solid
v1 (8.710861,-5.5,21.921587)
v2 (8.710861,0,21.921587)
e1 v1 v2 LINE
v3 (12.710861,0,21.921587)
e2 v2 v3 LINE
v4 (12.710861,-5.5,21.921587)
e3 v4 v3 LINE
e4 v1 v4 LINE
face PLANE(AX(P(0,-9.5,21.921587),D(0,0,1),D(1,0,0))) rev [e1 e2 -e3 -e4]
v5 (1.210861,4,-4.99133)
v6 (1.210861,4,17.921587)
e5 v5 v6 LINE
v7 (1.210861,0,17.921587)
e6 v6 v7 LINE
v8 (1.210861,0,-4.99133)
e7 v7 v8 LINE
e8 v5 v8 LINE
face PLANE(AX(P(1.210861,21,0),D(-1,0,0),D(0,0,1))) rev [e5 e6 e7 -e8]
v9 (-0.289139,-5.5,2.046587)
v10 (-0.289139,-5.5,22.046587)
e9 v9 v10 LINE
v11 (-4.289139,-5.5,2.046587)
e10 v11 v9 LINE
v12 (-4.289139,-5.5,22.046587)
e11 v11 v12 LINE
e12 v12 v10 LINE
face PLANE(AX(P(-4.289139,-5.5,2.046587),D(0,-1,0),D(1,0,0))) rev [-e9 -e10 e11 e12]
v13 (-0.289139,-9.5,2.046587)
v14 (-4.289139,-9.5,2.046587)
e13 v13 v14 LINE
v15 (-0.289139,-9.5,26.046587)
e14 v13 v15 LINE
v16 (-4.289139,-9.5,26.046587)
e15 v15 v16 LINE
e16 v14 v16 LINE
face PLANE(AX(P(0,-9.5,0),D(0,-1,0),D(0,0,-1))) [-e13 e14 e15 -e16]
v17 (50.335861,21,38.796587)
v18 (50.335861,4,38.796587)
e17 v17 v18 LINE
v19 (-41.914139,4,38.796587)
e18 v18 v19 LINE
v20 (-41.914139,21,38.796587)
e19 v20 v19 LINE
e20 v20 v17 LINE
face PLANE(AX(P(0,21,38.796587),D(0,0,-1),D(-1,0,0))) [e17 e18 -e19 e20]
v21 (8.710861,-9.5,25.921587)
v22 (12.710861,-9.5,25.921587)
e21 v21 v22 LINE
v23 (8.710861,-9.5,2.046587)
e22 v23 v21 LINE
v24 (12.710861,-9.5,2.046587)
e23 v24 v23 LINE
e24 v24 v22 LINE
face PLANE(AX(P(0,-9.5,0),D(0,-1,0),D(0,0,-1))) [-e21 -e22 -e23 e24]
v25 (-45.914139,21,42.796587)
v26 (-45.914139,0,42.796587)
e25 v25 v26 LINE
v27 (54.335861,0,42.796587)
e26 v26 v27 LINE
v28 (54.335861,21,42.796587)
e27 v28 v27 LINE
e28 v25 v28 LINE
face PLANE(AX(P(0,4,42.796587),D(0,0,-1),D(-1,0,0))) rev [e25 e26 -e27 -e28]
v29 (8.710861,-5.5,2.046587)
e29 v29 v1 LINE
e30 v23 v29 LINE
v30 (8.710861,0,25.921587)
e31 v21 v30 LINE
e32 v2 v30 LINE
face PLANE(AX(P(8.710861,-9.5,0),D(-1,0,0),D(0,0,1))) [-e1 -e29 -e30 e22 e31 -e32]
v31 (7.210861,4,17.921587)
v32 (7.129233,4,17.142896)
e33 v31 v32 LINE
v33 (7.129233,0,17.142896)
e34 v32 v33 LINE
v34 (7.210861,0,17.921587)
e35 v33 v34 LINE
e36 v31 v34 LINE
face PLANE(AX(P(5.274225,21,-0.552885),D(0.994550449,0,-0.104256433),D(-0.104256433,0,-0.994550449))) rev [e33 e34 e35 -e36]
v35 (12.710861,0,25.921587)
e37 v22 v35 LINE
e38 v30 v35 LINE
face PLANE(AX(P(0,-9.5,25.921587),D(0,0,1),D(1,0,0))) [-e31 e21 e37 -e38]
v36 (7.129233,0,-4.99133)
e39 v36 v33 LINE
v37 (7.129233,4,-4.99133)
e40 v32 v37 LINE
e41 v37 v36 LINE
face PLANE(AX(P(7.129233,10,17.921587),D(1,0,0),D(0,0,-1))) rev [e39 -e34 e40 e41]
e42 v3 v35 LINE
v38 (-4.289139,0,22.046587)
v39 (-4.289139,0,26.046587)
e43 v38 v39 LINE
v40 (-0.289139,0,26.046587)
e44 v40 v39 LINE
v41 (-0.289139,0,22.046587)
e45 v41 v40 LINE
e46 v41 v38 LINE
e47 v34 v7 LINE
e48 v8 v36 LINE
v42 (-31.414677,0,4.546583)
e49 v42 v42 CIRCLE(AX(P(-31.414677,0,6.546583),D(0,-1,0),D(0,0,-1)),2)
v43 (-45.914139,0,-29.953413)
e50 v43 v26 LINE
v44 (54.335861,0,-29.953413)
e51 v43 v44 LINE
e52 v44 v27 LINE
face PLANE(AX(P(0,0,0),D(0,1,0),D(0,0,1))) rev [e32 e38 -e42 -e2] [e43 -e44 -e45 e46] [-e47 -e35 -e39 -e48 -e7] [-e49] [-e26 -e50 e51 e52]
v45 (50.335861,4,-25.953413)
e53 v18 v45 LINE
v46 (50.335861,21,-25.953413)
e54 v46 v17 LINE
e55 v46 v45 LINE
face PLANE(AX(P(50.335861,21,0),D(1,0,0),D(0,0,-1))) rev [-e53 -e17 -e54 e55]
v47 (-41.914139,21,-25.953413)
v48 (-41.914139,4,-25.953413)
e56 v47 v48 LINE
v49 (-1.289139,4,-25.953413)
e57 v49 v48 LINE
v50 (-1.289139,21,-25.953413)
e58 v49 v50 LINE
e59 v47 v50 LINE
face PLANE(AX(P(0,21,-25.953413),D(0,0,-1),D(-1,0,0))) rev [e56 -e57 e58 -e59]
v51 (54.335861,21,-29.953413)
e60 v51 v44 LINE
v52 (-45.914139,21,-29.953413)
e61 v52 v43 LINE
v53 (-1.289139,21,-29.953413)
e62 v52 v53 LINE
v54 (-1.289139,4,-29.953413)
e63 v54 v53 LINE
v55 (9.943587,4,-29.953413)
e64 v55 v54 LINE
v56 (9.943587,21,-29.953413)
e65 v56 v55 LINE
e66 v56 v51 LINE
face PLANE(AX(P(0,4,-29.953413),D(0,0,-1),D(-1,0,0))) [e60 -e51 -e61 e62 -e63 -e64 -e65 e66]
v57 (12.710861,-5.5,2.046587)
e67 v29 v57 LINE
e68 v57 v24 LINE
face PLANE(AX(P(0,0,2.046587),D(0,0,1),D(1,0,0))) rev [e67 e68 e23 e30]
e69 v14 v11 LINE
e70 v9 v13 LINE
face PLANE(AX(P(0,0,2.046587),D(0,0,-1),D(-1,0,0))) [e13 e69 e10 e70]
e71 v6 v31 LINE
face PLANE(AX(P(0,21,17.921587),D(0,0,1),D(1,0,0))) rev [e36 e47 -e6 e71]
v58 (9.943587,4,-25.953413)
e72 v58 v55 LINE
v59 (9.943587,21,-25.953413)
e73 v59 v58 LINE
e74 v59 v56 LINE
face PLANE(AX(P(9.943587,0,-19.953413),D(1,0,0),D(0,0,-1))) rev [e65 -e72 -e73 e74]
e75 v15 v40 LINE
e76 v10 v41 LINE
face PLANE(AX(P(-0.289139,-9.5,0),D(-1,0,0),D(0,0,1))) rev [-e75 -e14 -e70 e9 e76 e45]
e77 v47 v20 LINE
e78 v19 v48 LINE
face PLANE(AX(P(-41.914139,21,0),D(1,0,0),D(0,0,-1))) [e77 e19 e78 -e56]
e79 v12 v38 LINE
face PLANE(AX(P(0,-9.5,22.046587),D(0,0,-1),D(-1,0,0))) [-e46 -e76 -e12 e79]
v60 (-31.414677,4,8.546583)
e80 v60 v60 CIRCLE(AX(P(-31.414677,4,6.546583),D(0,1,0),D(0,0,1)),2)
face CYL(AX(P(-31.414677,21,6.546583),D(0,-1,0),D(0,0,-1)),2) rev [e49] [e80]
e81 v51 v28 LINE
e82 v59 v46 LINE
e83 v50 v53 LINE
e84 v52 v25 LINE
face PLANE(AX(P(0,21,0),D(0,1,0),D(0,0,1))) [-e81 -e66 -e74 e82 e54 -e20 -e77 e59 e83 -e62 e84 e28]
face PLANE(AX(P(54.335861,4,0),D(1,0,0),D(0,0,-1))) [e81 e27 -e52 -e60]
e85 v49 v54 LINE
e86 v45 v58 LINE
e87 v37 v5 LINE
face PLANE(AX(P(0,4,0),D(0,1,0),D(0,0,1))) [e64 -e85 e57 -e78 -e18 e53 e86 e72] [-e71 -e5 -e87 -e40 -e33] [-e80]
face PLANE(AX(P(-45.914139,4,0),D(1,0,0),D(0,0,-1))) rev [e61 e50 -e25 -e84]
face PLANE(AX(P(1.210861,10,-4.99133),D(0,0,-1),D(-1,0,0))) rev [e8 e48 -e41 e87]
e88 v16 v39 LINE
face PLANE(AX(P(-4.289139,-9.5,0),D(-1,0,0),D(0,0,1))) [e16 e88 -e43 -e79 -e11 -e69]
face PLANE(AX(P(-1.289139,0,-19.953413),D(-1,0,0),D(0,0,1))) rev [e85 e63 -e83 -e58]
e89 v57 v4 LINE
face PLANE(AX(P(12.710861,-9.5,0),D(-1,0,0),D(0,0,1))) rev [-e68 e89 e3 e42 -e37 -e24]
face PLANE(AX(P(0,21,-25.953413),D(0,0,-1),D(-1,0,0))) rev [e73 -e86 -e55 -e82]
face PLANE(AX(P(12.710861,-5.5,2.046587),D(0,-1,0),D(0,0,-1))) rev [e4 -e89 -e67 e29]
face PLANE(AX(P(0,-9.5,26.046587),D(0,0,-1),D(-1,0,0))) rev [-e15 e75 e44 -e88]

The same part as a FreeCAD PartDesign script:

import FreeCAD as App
import Part
import Sketcher
from FreeCAD import Vector
Q = App.Units.Quantity

doc = App.newDocument("Part")
params = doc.addObject("Spreadsheet::Sheet", "Params")
for row, (alias, value) in enumerate([
    ("sketch1_width", "100.25 mm"),
    ("sketch1_height", "72.75 mm"),
    ("pad1_length", "4 mm"),
    ("sketch2_width", "100.25 mm"),
    ("sketch2_height", "72.75 mm"),
    ("pad2_length", "21 mm"),
    ("sketch3_width", "6 mm"),
    ("pocket1_length", "21 mm"),
    ("sketch4_diameter", "4 mm"),
    ("pocket2_length", "21 mm"),
    ("sketch5_width", "4 mm"),
    ("pad3_length", "9.5 mm"),
    ("sketch6_width", "4 mm"),
    ("pad4_length", "20 mm"),
    ("sketch7_height", "17 mm"),
    ("pocket3_length", "10 mm"),
    ("pocket4_length", "10 mm"),
], start=1):
    params.set(f"A{row}", alias)
    params.set(f"B{row}", "=" + value)
    params.setAlias(f"B{row}", alias)

body = doc.addObject("PartDesign::Body", "Body")

sketch1 = body.newObject("Sketcher::SketchObject", "Sketch")
sketch1.AttachmentSupport = (doc.getObject("XZ_Plane"), [""])
sketch1.MapMode = "FlatFace"
sketch1.addGeometry(Part.LineSegment(Vector(-46, 43, 0), Vector(54, 43, 0)), False)
sketch1.addGeometry(Part.LineSegment(Vector(54, 43, 0), Vector(54, -30, 0)), False)
sketch1.addGeometry(Part.LineSegment(Vector(54, -30, 0), Vector(-46, -30, 0)), False)
sketch1.addGeometry(Part.LineSegment(Vector(-46, -30, 0), Vector(-46, 43, 0)), False)
sketch1.addConstraint(Sketcher.Constraint("Coincident", 0, 2, 1, 1))
sketch1.addConstraint(Sketcher.Constraint("Coincident", 1, 2, 2, 1))
sketch1.addConstraint(Sketcher.Constraint("Coincident", 2, 2, 3, 1))
sketch1.addConstraint(Sketcher.Constraint("Coincident", 3, 2, 0, 1))
sketch1.addConstraint(Sketcher.Constraint("Horizontal", 0))
sketch1.addConstraint(Sketcher.Constraint("Vertical", 1))
sketch1.addConstraint(Sketcher.Constraint("Horizontal", 2))
sketch1.addConstraint(Sketcher.Constraint("Vertical", 3))
sketch1.addConstraint(Sketcher.Constraint("DistanceX", 0, 1, 0, 2, Q("100.25 mm")))
sketch1.addConstraint(Sketcher.Constraint("DistanceY", 1, 2, 1, 1, Q("72.75 mm")))
sketch1.addConstraint(Sketcher.Constraint("DistanceX", -1, 1, 0, 2, Q("54.335861 mm")))
sketch1.addConstraint(Sketcher.Constraint("DistanceY", -1, 1, 0, 2, Q("42.796587 mm")))
sketch1.setExpression("Constraints[8]", "Params.sketch1_width")
sketch1.setExpression("Constraints[9]", "Params.sketch1_height")
pad1 = body.newObject("PartDesign::Pad", "Pad")
pad1.Profile = sketch1
pad1.setExpression("Length", "Params.pad1_length")
pad1.Reversed = True

sketch2 = body.newObject("Sketcher::SketchObject", "Sketch001")
sketch2.AttachmentSupport = (doc.getObject("XZ_Plane"), [""])
sketch2.MapMode = "FlatFace"
sketch2.addGeometry(Part.LineSegment(Vector(-46, 43, 0), Vector(54, 43, 0)), False)
sketch2.addGeometry(Part.LineSegment(Vector(54, 43, 0), Vector(54, -30, 0)), False)
sketch2.addGeometry(Part.LineSegment(Vector(54, -30, 0), Vector(-46, -30, 0)), False)
sketch2.addGeometry(Part.LineSegment(Vector(-46, -30, 0), Vector(-46, 43, 0)), False)
sketch2.addGeometry(Part.LineSegment(Vector(50, -26, 0), Vector(50, 39, 0)), False)
sketch2.addGeometry(Part.LineSegment(Vector(50, 39, 0), Vector(-42, 39, 0)), False)
sketch2.addGeometry(Part.LineSegment(Vector(-42, 39, 0), Vector(-42, -26, 0)), False)
sketch2.addGeometry(Part.LineSegment(Vector(-42, -26, 0), Vector(50, -26, 0)), False)
sketch2.addConstraint(Sketcher.Constraint("Coincident", 0, 2, 1, 1))
sketch2.addConstraint(Sketcher.Constraint("Coincident", 1, 2, 2, 1))
sketch2.addConstraint(Sketcher.Constraint("Coincident", 2, 2, 3, 1))
sketch2.addConstraint(Sketcher.Constraint("Coincident", 3, 2, 0, 1))
sketch2.addConstraint(Sketcher.Constraint("Coincident", 4, 2, 5, 1))
sketch2.addConstraint(Sketcher.Constraint("Coincident", 5, 2, 6, 1))
sketch2.addConstraint(Sketcher.Constraint("Coincident", 6, 2, 7, 1))
sketch2.addConstraint(Sketcher.Constraint("Coincident", 7, 2, 4, 1))
sketch2.addConstraint(Sketcher.Constraint("Horizontal", 0))
sketch2.addConstraint(Sketcher.Constraint("Vertical", 1))
sketch2.addConstraint(Sketcher.Constraint("Horizontal", 2))
sketch2.addConstraint(Sketcher.Constraint("Vertical", 3))
sketch2.addConstraint(Sketcher.Constraint("Vertical", 4))
sketch2.addConstraint(Sketcher.Constraint("Horizontal", 5))
sketch2.addConstraint(Sketcher.Constraint("Vertical", 6))
sketch2.addConstraint(Sketcher.Constraint("Horizontal", 7))
sketch2.addConstraint(Sketcher.Constraint("DistanceX", 4, 2, 0, 2, Q("4 mm")))
sketch2.addConstraint(Sketcher.Constraint("DistanceY", 4, 2, 0, 2, Q("4 mm")))
sketch2.addConstraint(Sketcher.Constraint("DistanceX", 3, 2, 5, 2, Q("4 mm")))
sketch2.addConstraint(Sketcher.Constraint("DistanceY", 2, 2, 6, 2, Q("4 mm")))
sketch2.addConstraint(Sketcher.Constraint("DistanceX", 0, 1, 0, 2, Q("100.25 mm")))
sketch2.addConstraint(Sketcher.Constraint("DistanceY", 1, 2, 1, 1, Q("72.75 mm")))
sketch2.addConstraint(Sketcher.Constraint("DistanceX", -1, 1, 0, 2, Q("54.335861 mm")))
sketch2.addConstraint(Sketcher.Constraint("DistanceY", -1, 1, 0, 2, Q("42.796587 mm")))
sketch2.setExpression("Constraints[20]", "Params.sketch2_width")
sketch2.setExpression("Constraints[21]", "Params.sketch2_height")
pad2 = body.newObject("PartDesign::Pad", "Pad001")
pad2.Profile = sketch2
pad2.setExpression("Length", "Params.pad2_length")
pad2.Reversed = True

sketch3 = body.newObject("Sketcher::SketchObject", "Sketch002")
sketch3.AttachmentSupport = (doc.getObject("XZ_Plane"), [""])
sketch3.MapMode = "FlatFace"
sketch3.addGeometry(Part.LineSegment(Vector(5.9, 5.2, 0), Vector(7.2, 17.9, 0)), False)
sketch3.addGeometry(Part.LineSegment(Vector(7.2, 17.9, 0), Vector(1.2, 17.9, 0)), False)
sketch3.addGeometry(Part.LineSegment(Vector(1.2, 17.9, 0), Vector(1.2, -5, 0)), False)
sketch3.addGeometry(Part.LineSegment(Vector(1.2, -5, 0), Vector(4.8, -5, 0)), False)
sketch3.addGeometry(Part.LineSegment(Vector(4.8, -5, 0), Vector(5.9, 5.2, 0)), False)
sketch3.addConstraint(Sketcher.Constraint("Coincident", 0, 2, 1, 1))
sketch3.addConstraint(Sketcher.Constraint("Coincident", 1, 2, 2, 1))
sketch3.addConstraint(Sketcher.Constraint("Coincident", 2, 2, 3, 1))
sketch3.addConstraint(Sketcher.Constraint("Coincident", 3, 2, 4, 1))
sketch3.addConstraint(Sketcher.Constraint("Coincident", 4, 2, 0, 1))
sketch3.addConstraint(Sketcher.Constraint("Horizontal", 1))
sketch3.addConstraint(Sketcher.Constraint("Vertical", 2))
sketch3.addConstraint(Sketcher.Constraint("Horizontal", 3))
sketch3.addConstraint(Sketcher.Constraint("Parallel", 0, 4))
sketch3.addConstraint(Sketcher.Constraint("DistanceX", 1, 2, 1, 1, Q("6 mm")))
sketch3.addConstraint(Sketcher.Constraint("DistanceY", 2, 2, 2, 1, Q("22.87466 mm")))
sketch3.addConstraint(Sketcher.Constraint("DistanceX", 3, 1, 3, 2, Q("3.602102 mm")))
sketch3.addConstraint(Sketcher.Constraint("DistanceX", -1, 1, 0, 2, Q("7.210861 mm")))
sketch3.addConstraint(Sketcher.Constraint("DistanceX", 3, 2, 4, 2, Q("1.06552 mm")))
sketch3.addConstraint(Sketcher.Constraint("DistanceY", -1, 1, 0, 2, Q("17.921587 mm")))
sketch3.setExpression("Constraints[9]", "Params.sketch3_width")
pocket1 = body.newObject("PartDesign::Pocket", "Pocket")
pocket1.Profile = sketch3
pocket1.setExpression("Length", "Params.pocket1_length")

sketch4 = body.newObject("Sketcher::SketchObject", "Sketch003")
sketch4.AttachmentSupport = (doc.getObject("XZ_Plane"), [""])
sketch4.MapMode = "FlatFace"
sketch4.addGeometry(Part.Circle(Vector(-31.4, 6.5, 0), Vector(0, 0, 1), 2), False)
sketch4.addConstraint(Sketcher.Constraint("Diameter", 0, Q("4 mm")))
sketch4.addConstraint(Sketcher.Constraint("DistanceX", 0, 3, -1, 1, Q("31.414677 mm")))
sketch4.addConstraint(Sketcher.Constraint("DistanceY", -1, 1, 0, 3, Q("6.546583 mm")))
sketch4.setExpression("Constraints[0]", "Params.sketch4_diameter")
pocket2 = body.newObject("PartDesign::Pocket", "Pocket001")
pocket2.Profile = sketch4
pocket2.setExpression("Length", "Params.pocket2_length")

sketch5 = body.newObject("Sketcher::SketchObject", "Sketch004")
sketch5.AttachmentSupport = (doc.getObject("XZ_Plane"), [""])
sketch5.MapMode = "FlatFace"
sketch5.addGeometry(Part.LineSegment(Vector(12.7, 21.9, 0), Vector(12.7, 25.9, 0)), False)
sketch5.addGeometry(Part.LineSegment(Vector(12.7, 25.9, 0), Vector(8.7, 25.9, 0)), False)
sketch5.addGeometry(Part.LineSegment(Vector(8.7, 25.9, 0), Vector(8.7, 21.9, 0)), False)
sketch5.addGeometry(Part.LineSegment(Vector(8.7, 21.9, 0), Vector(12.7, 21.9, 0)), False)
sketch5.addGeometry(Part.LineSegment(Vector(-0.3, 22, 0), Vector(-0.3, 26, 0)), False)
sketch5.addGeometry(Part.LineSegment(Vector(-0.3, 26, 0), Vector(-4.3, 26, 0)), False)
sketch5.addGeometry(Part.LineSegment(Vector(-4.3, 26, 0), Vector(-4.3, 22, 0)), False)
sketch5.addGeometry(Part.LineSegment(Vector(-4.3, 22, 0), Vector(-0.3, 22, 0)), False)
sketch5.addConstraint(Sketcher.Constraint("Coincident", 0, 2, 1, 1))
sketch5.addConstraint(Sketcher.Constraint("Coincident", 1, 2, 2, 1))
sketch5.addConstraint(Sketcher.Constraint("Coincident", 2, 2, 3, 1))
sketch5.addConstraint(Sketcher.Constraint("Coincident", 3, 2, 0, 1))
sketch5.addConstraint(Sketcher.Constraint("Coincident", 4, 2, 5, 1))
sketch5.addConstraint(Sketcher.Constraint("Coincident", 5, 2, 6, 1))
sketch5.addConstraint(Sketcher.Constraint("Coincident", 6, 2, 7, 1))
sketch5.addConstraint(Sketcher.Constraint("Coincident", 7, 2, 4, 1))
sketch5.addConstraint(Sketcher.Constraint("Vertical", 0))
sketch5.addConstraint(Sketcher.Constraint("Horizontal", 1))
sketch5.addConstraint(Sketcher.Constraint("Vertical", 2))
sketch5.addConstraint(Sketcher.Constraint("Horizontal", 3))
sketch5.addConstraint(Sketcher.Constraint("Vertical", 4))
sketch5.addConstraint(Sketcher.Constraint("Horizontal", 5))
sketch5.addConstraint(Sketcher.Constraint("Vertical", 6))
sketch5.addConstraint(Sketcher.Constraint("Horizontal", 7))
sketch5.addConstraint(Sketcher.Constraint("Equal", 3, 5))
sketch5.addConstraint(Sketcher.Constraint("Equal", 7, 0))
sketch5.addConstraint(Sketcher.Constraint("Equal", 2, 4))
sketch5.addConstraint(Sketcher.Constraint("DistanceX", 1, 2, 1, 1, Q("4 mm")))
sketch5.addConstraint(Sketcher.Constraint("DistanceX", 4, 2, 1, 2, Q("9 mm")))
sketch5.addConstraint(Sketcher.Constraint("DistanceY", 1, 2, 4, 2, Q("0.125 mm")))
sketch5.addConstraint(Sketcher.Constraint("DistanceX", -1, 1, 0, 2, Q("12.710861 mm")))
sketch5.addConstraint(Sketcher.Constraint("DistanceY", -1, 1, 0, 2, Q("25.921587 mm")))
sketch5.setExpression("Constraints[19]", "Params.sketch5_width")
pad3 = body.newObject("PartDesign::Pad", "Pad002")
pad3.Profile = sketch5
pad3.setExpression("Length", "Params.pad3_length")

sketch6 = body.newObject("Sketcher::SketchObject", "Sketch005")
sketch6.AttachmentSupport = (doc.getObject("XY_Plane"), [""])
sketch6.MapMode = "FlatFace"
sketch6.AttachmentOffset = App.Placement(Vector(0, 0, 22.046587), App.Rotation())
sketch6.addGeometry(Part.LineSegment(Vector(-0.3, -5.5, 0), Vector(-0.3, -9.5, 0)), False)
sketch6.addGeometry(Part.LineSegment(Vector(-0.3, -9.5, 0), Vector(-4.3, -9.5, 0)), False)
sketch6.addGeometry(Part.LineSegment(Vector(-4.3, -9.5, 0), Vector(-4.3, -5.5, 0)), False)
sketch6.addGeometry(Part.LineSegment(Vector(-4.3, -5.5, 0), Vector(-0.3, -5.5, 0)), False)
sketch6.addGeometry(Part.LineSegment(Vector(12.7, -5.5, 0), Vector(12.7, -9.5, 0)), False)
sketch6.addGeometry(Part.LineSegment(Vector(12.7, -9.5, 0), Vector(8.7, -9.5, 0)), False)
sketch6.addGeometry(Part.LineSegment(Vector(8.7, -9.5, 0), Vector(8.7, -5.5, 0)), False)
sketch6.addGeometry(Part.LineSegment(Vector(8.7, -5.5, 0), Vector(12.7, -5.5, 0)), False)
sketch6.addConstraint(Sketcher.Constraint("Coincident", 0, 2, 1, 1))
sketch6.addConstraint(Sketcher.Constraint("Coincident", 1, 2, 2, 1))
sketch6.addConstraint(Sketcher.Constraint("Coincident", 2, 2, 3, 1))
sketch6.addConstraint(Sketcher.Constraint("Coincident", 3, 2, 0, 1))
sketch6.addConstraint(Sketcher.Constraint("Coincident", 4, 2, 5, 1))
sketch6.addConstraint(Sketcher.Constraint("Coincident", 5, 2, 6, 1))
sketch6.addConstraint(Sketcher.Constraint("Coincident", 6, 2, 7, 1))
sketch6.addConstraint(Sketcher.Constraint("Coincident", 7, 2, 4, 1))
sketch6.addConstraint(Sketcher.Constraint("Vertical", 0))
sketch6.addConstraint(Sketcher.Constraint("Horizontal", 1))
sketch6.addConstraint(Sketcher.Constraint("Vertical", 2))
sketch6.addConstraint(Sketcher.Constraint("Horizontal", 3))
sketch6.addConstraint(Sketcher.Constraint("Vertical", 4))
sketch6.addConstraint(Sketcher.Constraint("Horizontal", 5))
sketch6.addConstraint(Sketcher.Constraint("Vertical", 6))
sketch6.addConstraint(Sketcher.Constraint("Horizontal", 7))
sketch6.addConstraint(Sketcher.Constraint("Horizontal", 1, 2, 4, 2))
sketch6.addConstraint(Sketcher.Constraint("Horizontal", 3, 2, 6, 2))
sketch6.addConstraint(Sketcher.Constraint("Equal", 3, 5))
sketch6.addConstraint(Sketcher.Constraint("Equal", 7, 0))
sketch6.addConstraint(Sketcher.Constraint("DistanceX", 1, 2, 1, 1, Q("4 mm")))
sketch6.addConstraint(Sketcher.Constraint("DistanceX", 0, 2, 4, 2, Q("13 mm")))
sketch6.addConstraint(Sketcher.Constraint("DistanceY", 0, 2, -1, 1, Q("9.5 mm")))
sketch6.addConstraint(Sketcher.Constraint("DistanceX", 0, 2, -1, 1, Q("0.289139 mm")))
sketch6.setExpression("Constraints[20]", "Params.sketch6_width")
pad4 = body.newObject("PartDesign::Pad", "Pad003")
pad4.Profile = sketch6
pad4.setExpression("Length", "Params.pad4_length")
pad4.Reversed = True

sketch7 = body.newObject("Sketcher::SketchObject", "Sketch006")
sketch7.AttachmentSupport = (doc.getObject("XY_Plane"), [""])
sketch7.MapMode = "FlatFace"
sketch7.AttachmentOffset = App.Placement(Vector(0, 0, -29.953413), App.Rotation())
sketch7.addGeometry(Part.LineSegment(Vector(-1, 21, 0), Vector(10, 21, 0)), False)
sketch7.addGeometry(Part.LineSegment(Vector(10, 21, 0), Vector(10, 4, 0)), False)
sketch7.addGeometry(Part.LineSegment(Vector(10, 4, 0), Vector(-1, 4, 0)), False)
sketch7.addGeometry(Part.LineSegment(Vector(-1, 4, 0), Vector(-1, 21, 0)), False)
sketch7.addConstraint(Sketcher.Constraint("Coincident", 0, 2, 1, 1))
sketch7.addConstraint(Sketcher.Constraint("Coincident", 1, 2, 2, 1))
sketch7.addConstraint(Sketcher.Constraint("Coincident", 2, 2, 3, 1))
sketch7.addConstraint(Sketcher.Constraint("Coincident", 3, 2, 0, 1))
sketch7.addConstraint(Sketcher.Constraint("Horizontal", 0))
sketch7.addConstraint(Sketcher.Constraint("Vertical", 1))
sketch7.addConstraint(Sketcher.Constraint("Horizontal", 2))
sketch7.addConstraint(Sketcher.Constraint("Vertical", 3))
sketch7.addConstraint(Sketcher.Constraint("DistanceY", 1, 2, 1, 1, Q("17 mm")))
sketch7.addConstraint(Sketcher.Constraint("DistanceY", -1, 1, 0, 2, Q("21 mm")))
sketch7.addConstraint(Sketcher.Constraint("DistanceX", 0, 1, 0, 2, Q("11.232726 mm")))
sketch7.addConstraint(Sketcher.Constraint("DistanceX", 2, 2, -1, 1, Q("1.289139 mm")))
sketch7.setExpression("Constraints[8]", "Params.sketch7_height")
pocket3 = body.newObject("PartDesign::Pocket", "Pocket002")
pocket3.Profile = sketch7
pocket3.setExpression("Length", "Params.pocket3_length")
pocket3.Reversed = True

sketch8 = body.newObject("Sketcher::SketchObject", "Sketch007")
sketch8.AttachmentSupport = (doc.getObject("XZ_Plane"), [""])
sketch8.MapMode = "FlatFace"
sketch8.addGeometry(Part.LineSegment(Vector(1, 18, 0), Vector(1, -5, 0)), False)
sketch8.addGeometry(Part.LineSegment(Vector(1, -5, 0), Vector(7, -5, 0)), False)
sketch8.addGeometry(Part.LineSegment(Vector(7, -5, 0), Vector(7, 18, 0)), False)
sketch8.addGeometry(Part.LineSegment(Vector(7, 18, 0), Vector(1, 18, 0)), False)
sketch8.addConstraint(Sketcher.Constraint("Coincident", 0, 2, 1, 1))
sketch8.addConstraint(Sketcher.Constraint("Coincident", 1, 2, 2, 1))
sketch8.addConstraint(Sketcher.Constraint("Coincident", 2, 2, 3, 1))
sketch8.addConstraint(Sketcher.Constraint("Coincident", 3, 2, 0, 1))
sketch8.addConstraint(Sketcher.Constraint("Vertical", 0))
sketch8.addConstraint(Sketcher.Constraint("Horizontal", 1))
sketch8.addConstraint(Sketcher.Constraint("Vertical", 2))
sketch8.addConstraint(Sketcher.Constraint("Horizontal", 3))
sketch8.addConstraint(Sketcher.Constraint("DistanceX", 1, 1, 1, 2, Q("5.918372 mm")))
sketch8.addConstraint(Sketcher.Constraint("DistanceY", 0, 2, 0, 1, Q("22.912917 mm")))
sketch8.addConstraint(Sketcher.Constraint("DistanceX", -1, 1, 0, 2, Q("1.210861 mm")))
sketch8.addConstraint(Sketcher.Constraint("DistanceY", 0, 2, -1, 1, Q("4.99133 mm")))
pocket4 = body.newObject("PartDesign::Pocket", "Pocket003")
pocket4.Profile = sketch8
pocket4.setExpression("Length", "Params.pocket4_length")

doc.recompute()
